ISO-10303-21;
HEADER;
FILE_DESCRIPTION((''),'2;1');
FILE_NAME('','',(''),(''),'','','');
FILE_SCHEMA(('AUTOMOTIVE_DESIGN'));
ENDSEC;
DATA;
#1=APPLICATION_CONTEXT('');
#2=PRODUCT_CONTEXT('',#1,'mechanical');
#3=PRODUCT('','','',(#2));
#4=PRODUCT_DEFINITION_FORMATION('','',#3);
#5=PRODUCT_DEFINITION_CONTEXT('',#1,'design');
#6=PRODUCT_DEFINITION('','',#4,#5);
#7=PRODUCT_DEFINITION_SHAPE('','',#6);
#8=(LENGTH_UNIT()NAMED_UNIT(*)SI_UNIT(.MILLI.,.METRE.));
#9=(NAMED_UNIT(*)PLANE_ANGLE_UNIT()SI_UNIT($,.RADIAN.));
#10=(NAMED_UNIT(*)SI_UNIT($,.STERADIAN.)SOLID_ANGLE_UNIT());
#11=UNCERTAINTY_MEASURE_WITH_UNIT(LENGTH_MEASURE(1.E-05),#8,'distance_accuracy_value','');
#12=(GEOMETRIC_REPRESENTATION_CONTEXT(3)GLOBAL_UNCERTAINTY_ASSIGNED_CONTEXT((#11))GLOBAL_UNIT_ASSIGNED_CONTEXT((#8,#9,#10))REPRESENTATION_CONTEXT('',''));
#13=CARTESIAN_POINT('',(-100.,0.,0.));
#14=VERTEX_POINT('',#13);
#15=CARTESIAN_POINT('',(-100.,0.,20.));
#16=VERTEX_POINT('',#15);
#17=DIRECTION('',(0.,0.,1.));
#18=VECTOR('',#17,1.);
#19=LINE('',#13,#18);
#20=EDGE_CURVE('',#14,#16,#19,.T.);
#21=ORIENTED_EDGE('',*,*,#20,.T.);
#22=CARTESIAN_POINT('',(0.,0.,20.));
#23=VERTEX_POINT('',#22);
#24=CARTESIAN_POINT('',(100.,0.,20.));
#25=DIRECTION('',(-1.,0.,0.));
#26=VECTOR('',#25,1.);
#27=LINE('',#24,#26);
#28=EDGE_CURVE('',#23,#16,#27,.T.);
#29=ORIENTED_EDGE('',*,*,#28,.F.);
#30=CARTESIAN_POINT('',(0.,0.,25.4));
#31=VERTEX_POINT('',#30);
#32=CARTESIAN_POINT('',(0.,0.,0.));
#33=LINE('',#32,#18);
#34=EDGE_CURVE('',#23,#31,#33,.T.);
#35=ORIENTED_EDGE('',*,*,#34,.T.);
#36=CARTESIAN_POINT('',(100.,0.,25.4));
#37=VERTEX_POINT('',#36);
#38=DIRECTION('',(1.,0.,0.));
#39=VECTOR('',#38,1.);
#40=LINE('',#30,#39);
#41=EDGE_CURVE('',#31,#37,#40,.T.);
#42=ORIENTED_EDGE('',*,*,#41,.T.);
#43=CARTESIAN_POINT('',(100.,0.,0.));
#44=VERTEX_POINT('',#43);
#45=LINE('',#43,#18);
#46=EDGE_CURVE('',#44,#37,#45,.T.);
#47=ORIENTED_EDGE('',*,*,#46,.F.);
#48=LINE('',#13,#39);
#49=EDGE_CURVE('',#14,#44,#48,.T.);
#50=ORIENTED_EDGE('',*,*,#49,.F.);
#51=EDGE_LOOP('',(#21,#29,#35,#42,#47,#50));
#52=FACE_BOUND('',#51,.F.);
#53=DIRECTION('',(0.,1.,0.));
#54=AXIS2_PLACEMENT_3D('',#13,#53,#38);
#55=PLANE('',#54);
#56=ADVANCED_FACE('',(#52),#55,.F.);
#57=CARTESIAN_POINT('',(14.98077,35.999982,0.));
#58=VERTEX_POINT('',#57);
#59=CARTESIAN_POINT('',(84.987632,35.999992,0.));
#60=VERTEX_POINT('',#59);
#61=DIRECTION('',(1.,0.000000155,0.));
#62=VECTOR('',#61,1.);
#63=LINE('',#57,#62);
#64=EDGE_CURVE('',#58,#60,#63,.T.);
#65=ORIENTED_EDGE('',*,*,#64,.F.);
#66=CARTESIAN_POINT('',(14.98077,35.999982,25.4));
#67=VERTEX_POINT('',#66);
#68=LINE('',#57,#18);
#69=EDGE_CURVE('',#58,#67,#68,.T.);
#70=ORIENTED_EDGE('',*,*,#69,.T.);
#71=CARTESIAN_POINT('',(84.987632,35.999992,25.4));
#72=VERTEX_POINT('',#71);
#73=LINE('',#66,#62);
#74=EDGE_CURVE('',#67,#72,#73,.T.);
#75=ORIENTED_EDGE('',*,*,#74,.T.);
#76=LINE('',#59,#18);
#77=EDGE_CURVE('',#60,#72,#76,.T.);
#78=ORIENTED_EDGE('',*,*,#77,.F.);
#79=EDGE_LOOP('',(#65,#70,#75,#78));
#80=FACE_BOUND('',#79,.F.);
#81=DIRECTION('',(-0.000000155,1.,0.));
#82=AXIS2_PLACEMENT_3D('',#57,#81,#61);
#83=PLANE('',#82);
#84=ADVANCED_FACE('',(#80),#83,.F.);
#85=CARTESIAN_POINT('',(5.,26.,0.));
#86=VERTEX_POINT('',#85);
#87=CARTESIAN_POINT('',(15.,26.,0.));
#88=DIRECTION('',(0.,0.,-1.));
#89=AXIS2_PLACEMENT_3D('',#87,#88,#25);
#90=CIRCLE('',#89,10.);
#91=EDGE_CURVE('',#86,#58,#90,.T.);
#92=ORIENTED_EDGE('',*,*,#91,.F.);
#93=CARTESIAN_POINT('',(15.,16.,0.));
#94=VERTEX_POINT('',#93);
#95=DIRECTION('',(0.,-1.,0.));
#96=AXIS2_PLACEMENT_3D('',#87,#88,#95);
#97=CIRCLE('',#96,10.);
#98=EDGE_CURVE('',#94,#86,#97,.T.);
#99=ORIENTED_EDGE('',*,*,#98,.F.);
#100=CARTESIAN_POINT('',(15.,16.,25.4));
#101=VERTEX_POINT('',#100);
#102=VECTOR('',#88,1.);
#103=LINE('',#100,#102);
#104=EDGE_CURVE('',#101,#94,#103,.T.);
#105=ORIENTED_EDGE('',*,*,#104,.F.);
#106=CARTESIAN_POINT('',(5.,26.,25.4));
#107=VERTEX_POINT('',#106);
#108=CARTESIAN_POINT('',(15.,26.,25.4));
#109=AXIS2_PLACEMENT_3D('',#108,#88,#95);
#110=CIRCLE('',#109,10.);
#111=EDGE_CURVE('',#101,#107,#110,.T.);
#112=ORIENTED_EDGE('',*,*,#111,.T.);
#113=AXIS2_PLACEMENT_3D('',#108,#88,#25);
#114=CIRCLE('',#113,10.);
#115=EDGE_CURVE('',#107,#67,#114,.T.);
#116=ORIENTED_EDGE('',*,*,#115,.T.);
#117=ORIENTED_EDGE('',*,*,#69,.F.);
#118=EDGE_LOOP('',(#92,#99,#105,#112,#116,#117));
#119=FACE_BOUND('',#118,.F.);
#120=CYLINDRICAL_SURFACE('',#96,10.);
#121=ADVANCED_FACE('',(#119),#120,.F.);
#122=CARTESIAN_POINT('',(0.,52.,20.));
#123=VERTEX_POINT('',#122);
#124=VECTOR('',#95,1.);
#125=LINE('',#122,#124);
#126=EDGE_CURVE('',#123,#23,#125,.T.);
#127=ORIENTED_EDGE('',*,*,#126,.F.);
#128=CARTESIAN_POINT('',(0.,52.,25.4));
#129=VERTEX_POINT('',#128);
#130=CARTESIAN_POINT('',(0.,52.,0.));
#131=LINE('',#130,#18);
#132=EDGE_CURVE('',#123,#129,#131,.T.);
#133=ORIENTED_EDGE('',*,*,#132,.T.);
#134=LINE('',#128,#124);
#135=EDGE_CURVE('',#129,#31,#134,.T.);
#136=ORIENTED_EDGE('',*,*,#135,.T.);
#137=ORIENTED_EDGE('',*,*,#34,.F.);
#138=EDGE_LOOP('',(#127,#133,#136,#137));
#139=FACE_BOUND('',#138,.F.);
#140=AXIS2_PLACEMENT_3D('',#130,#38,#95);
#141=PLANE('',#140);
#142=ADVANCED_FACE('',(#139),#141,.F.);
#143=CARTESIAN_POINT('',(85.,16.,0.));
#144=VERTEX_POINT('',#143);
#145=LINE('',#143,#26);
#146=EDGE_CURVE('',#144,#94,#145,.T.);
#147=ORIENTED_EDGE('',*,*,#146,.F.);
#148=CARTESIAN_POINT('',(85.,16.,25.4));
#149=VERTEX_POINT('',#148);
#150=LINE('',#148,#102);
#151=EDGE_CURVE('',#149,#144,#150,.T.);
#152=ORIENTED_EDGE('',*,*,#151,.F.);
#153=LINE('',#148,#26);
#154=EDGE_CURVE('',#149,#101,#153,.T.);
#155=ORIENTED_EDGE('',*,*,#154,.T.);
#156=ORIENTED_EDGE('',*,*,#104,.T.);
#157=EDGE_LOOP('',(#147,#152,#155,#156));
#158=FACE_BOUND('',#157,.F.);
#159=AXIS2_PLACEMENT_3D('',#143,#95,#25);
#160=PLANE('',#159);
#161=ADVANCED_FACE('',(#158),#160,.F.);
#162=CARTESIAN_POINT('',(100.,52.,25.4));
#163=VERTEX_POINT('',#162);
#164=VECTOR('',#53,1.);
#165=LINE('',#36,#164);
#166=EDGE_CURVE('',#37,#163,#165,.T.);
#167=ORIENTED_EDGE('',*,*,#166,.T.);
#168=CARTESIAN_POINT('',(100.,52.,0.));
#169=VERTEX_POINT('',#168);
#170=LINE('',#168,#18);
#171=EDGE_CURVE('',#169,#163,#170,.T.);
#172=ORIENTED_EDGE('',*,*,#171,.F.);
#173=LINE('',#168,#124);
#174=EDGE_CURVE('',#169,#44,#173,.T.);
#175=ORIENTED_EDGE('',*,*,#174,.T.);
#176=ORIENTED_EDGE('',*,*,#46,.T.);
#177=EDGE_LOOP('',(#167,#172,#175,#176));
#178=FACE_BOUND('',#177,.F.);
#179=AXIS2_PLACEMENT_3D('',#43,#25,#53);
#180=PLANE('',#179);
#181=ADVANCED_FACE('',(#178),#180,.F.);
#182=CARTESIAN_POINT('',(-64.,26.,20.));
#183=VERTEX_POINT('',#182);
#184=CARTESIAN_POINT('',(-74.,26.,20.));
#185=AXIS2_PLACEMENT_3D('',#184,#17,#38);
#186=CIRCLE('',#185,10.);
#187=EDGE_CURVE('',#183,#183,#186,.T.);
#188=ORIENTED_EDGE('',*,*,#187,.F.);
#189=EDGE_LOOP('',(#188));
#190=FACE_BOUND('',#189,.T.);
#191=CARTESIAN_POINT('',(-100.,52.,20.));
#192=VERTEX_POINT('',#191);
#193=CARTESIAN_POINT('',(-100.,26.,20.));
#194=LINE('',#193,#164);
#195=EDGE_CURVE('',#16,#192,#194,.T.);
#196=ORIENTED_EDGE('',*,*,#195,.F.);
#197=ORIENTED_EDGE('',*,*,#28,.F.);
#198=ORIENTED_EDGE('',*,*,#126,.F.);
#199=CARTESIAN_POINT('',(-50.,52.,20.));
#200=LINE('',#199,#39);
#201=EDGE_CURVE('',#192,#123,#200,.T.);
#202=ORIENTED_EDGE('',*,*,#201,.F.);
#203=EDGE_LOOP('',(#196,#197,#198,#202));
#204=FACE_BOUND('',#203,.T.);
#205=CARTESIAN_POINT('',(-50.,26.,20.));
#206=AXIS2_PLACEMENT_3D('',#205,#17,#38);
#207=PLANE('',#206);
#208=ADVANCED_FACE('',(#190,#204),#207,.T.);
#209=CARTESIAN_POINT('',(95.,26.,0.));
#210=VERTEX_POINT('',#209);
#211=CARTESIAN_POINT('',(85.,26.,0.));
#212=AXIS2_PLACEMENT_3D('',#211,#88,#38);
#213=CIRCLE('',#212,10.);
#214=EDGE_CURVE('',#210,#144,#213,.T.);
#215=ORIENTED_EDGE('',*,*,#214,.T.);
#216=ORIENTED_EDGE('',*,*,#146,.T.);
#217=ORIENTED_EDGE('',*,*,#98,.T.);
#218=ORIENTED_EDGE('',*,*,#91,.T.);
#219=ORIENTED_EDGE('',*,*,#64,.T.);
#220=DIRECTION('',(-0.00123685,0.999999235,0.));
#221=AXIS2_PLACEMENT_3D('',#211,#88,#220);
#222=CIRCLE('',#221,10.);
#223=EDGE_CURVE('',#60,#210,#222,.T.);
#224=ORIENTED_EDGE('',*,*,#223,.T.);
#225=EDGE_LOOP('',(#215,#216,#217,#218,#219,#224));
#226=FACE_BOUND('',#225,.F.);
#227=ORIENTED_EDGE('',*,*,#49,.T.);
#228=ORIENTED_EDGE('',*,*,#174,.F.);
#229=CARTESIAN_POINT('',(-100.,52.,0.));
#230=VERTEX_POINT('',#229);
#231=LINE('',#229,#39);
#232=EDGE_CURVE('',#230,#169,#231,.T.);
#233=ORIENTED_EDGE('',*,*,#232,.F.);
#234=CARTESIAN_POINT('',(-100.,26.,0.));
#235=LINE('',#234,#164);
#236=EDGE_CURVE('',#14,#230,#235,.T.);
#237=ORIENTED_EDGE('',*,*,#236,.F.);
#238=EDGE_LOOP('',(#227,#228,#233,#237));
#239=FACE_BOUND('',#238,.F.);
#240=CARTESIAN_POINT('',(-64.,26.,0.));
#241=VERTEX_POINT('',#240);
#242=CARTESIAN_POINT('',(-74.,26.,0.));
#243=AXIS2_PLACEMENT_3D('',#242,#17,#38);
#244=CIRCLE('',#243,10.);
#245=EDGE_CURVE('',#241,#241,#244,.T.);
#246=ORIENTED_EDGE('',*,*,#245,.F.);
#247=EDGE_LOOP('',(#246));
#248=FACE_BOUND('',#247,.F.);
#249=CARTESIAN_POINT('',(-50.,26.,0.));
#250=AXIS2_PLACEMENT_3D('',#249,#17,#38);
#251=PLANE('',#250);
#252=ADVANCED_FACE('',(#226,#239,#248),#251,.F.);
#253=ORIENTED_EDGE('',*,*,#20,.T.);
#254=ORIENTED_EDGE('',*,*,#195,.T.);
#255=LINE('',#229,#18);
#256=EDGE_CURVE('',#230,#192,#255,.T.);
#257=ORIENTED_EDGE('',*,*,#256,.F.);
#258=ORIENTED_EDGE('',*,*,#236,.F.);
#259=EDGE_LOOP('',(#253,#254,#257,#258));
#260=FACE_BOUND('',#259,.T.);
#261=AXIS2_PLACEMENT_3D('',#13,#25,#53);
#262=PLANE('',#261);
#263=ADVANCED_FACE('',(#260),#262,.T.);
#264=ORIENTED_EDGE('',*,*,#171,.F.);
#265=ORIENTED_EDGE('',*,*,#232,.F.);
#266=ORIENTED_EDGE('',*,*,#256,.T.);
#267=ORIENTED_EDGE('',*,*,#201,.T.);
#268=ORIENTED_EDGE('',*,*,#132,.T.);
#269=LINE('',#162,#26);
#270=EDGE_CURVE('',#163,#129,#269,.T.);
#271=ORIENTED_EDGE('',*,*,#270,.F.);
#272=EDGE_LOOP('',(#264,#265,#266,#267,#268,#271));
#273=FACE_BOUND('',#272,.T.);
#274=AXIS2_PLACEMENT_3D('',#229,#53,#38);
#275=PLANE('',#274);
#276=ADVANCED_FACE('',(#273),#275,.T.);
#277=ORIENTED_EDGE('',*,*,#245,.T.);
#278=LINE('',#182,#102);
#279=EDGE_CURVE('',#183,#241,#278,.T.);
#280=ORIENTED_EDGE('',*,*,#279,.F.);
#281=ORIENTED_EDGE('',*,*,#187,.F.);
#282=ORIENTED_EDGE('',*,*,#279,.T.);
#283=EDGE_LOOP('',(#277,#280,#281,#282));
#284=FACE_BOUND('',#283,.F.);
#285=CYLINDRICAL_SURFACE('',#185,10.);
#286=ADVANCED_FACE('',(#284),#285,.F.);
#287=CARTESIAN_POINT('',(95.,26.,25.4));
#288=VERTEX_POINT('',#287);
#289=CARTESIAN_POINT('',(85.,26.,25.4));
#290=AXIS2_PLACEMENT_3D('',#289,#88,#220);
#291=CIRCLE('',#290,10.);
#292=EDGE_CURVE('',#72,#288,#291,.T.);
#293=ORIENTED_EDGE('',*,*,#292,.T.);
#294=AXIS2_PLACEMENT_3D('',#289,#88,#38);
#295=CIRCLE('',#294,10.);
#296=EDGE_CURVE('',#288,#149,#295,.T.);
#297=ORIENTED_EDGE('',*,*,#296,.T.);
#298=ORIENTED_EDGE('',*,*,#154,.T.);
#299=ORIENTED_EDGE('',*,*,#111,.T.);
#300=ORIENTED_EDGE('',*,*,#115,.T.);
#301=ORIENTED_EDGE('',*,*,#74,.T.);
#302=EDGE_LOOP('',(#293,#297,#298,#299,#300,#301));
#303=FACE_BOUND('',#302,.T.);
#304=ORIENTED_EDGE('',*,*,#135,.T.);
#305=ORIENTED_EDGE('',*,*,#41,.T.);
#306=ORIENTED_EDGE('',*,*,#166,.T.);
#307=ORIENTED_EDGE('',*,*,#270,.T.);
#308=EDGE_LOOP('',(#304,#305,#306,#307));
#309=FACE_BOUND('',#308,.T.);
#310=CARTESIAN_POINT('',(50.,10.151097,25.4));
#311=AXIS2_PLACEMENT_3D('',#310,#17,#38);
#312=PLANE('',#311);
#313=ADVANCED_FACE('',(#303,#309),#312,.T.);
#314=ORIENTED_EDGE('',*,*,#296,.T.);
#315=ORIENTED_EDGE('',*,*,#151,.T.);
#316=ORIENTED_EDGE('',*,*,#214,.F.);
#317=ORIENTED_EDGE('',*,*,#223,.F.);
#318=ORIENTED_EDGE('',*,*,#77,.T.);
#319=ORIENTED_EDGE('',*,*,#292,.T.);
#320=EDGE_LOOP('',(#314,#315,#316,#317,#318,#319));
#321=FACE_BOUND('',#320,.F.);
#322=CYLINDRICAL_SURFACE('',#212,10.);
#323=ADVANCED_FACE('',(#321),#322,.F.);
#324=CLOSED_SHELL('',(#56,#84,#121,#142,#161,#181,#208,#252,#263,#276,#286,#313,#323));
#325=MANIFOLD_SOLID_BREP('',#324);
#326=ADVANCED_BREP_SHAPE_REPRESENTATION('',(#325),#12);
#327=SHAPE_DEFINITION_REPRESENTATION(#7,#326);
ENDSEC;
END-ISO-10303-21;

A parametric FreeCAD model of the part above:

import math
import FreeCAD as App
import Part
import Sketcher

V = App.Vector
Q = App.Units.Quantity

doc = App.newDocument("Part")
body = doc.addObject("PartDesign::Body", "Body")

sketch1 = body.newObject("Sketcher::SketchObject", "Sketch")
sketch1.AttachmentSupport = (doc.getObject("XY_Plane"), [""])
sketch1.MapMode = "FlatFace"
sketch1.addGeometry(Part.LineSegment(V(0, 26, 0), V(0, 0, 0)), False)
sketch1.addGeometry(Part.LineSegment(V(0, 0, 0), V(100, 0, 0)), False)
sketch1.addGeometry(Part.LineSegment(V(100, 0, 0), V(100, 26, 0)), False)
sketch1.addGeometry(Part.LineSegment(V(100, 26, 0), V(95, 26, 0)), False)
sketch1.addGeometry(Part.ArcOfCircle(Part.Circle(V(85, 26, 0), V(0, 0, 1), 10), math.radians(-90), math.radians(0)), False)
sketch1.addGeometry(Part.LineSegment(V(85, 16, 0), V(15, 16, 0)), False)
sketch1.addGeometry(Part.ArcOfCircle(Part.Circle(V(15, 26, 0), V(0, 0, 1), 10), math.radians(180), math.radians(270)), False)
sketch1.addGeometry(Part.LineSegment(V(5, 26, 0), V(0, 26, 0)), False)
sketch1.addConstraint(Sketcher.Constraint("Coincident", 0, 2, 1, 1))
sketch1.addConstraint(Sketcher.Constraint("Coincident", 1, 2, 2, 1))
sketch1.addConstraint(Sketcher.Constraint("Coincident", 2, 2, 3, 1))
sketch1.addConstraint(Sketcher.Constraint("Coincident", 3, 2, 4, 2))
sketch1.addConstraint(Sketcher.Constraint("Tangent", 4, 1, 5, 1))
sketch1.addConstraint(Sketcher.Constraint("Tangent", 5, 2, 6, 2))
sketch1.addConstraint(Sketcher.Constraint("Coincident", 6, 1, 7, 1))
sketch1.addConstraint(Sketcher.Constraint("Coincident", 7, 2, 0, 1))
sketch1.addConstraint(Sketcher.Constraint("Vertical", 0))
sketch1.addConstraint(Sketcher.Constraint("Horizontal", 1))
sketch1.addConstraint(Sketcher.Constraint("Vertical", 2))
sketch1.addConstraint(Sketcher.Constraint("Horizontal", 3))
sketch1.addConstraint(Sketcher.Constraint("Horizontal", 5))
sketch1.addConstraint(Sketcher.Constraint("Horizontal", 7))
sketch1.addConstraint(Sketcher.Constraint("Coincident", 0, 2, -1, 1))
sketch1.addConstraint(Sketcher.Constraint("Equal", 4, 6))
sketch1.addConstraint(Sketcher.Constraint("Horizontal", 6, 3, 2, 2))
sketch1.addConstraint(Sketcher.Constraint("Horizontal", 3, 2, 6, 1))
sketch1.addConstraint(Sketcher.Constraint("Equal", 3, 7))
sketch1.addConstraint(Sketcher.Constraint("Radius", 4, Q("10 mm")))
sketch1.addConstraint(Sketcher.Constraint("DistanceX", 1, 1, 1, 2, Q("100 mm")))
sketch1.addConstraint(Sketcher.Constraint("DistanceX", 3, 2, 3, 1, Q("5 mm")))
sketch1.addConstraint(Sketcher.Constraint("DistanceY", 0, 2, 0, 1, Q("26 mm")))
pad1 = body.newObject("PartDesign::Pad", "Pad")
pad1.Profile = sketch1
pad1.Length = 20

sketch2 = body.newObject("Sketcher::SketchObject", "Sketch001")
sketch2.AttachmentSupport = (doc.getObject("XY_Plane"), [""])
sketch2.MapMode = "FlatFace"
sketch2.AttachmentOffset = App.Placement(V(0, 0, 20), App.Rotation())
sketch2.addGeometry(Part.LineSegment(V(85.683391, 35.976622, 0), V(15.684075, 35.976575, 0)), False)
sketch2.addGeometry(Part.LineSegment(V(15.684075, 35.976575, 0), V(15.684075, 16.023425, 0)), False)
sketch2.addGeometry(Part.LineSegment(V(15.684075, 16.023425, 0), V(85.683391, 16.023378, 0)), False)
sketch2.addGeometry(Part.LineSegment(V(85.683391, 16.023378, 0), V(85.683391, 35.976622, 0)), False)
sketch2.addConstraint(Sketcher.Constraint("Coincident", 0, 2, 1, 1))
sketch2.addConstraint(Sketcher.Constraint("Coincident", 1, 2, 2, 1))
sketch2.addConstraint(Sketcher.Constraint("Coincident", 2, 2, 3, 1))
sketch2.addConstraint(Sketcher.Constraint("Coincident", 3, 2, 0, 1))
sketch2.addConstraint(Sketcher.Constraint("Vertical", 1))
sketch2.addConstraint(Sketcher.Constraint("Vertical", 3))
sketch2.addConstraint(Sketcher.Constraint("DistanceY", 1, 2, 1, 1, Q("19.953149 mm")))
sketch2.addConstraint(Sketcher.Constraint("DistanceY", 3, 1, 3, 2, Q("19.953243 mm")))
sketch2.addConstraint(Sketcher.Constraint("DistanceX", -1, 1, 2, 2, Q("85.683391 mm")))
sketch2.addConstraint(Sketcher.Constraint("DistanceY", -1, 1, 2, 2, Q("16.023378 mm")))
sketch2.addConstraint(Sketcher.Constraint("Distance", 0, Q("69.999315 mm")))
sketch2.addConstraint(Sketcher.Constraint("DistanceY", -1, 1, 0, 2, Q("35.976575 mm")))
pocket1 = body.newObject("PartDesign::Pocket", "Pocket")
pocket1.Profile = sketch2
pocket1.Length = 25.4

sketch3 = body.newObject("Sketcher::SketchObject", "Sketch002")
sketch3.AttachmentSupport = (doc.getObject("XY_Plane"), [""])
sketch3.MapMode = "FlatFace"
sketch3.AttachmentOffset = App.Placement(V(0, 0, 20), App.Rotation())
sketch3.addGeometry(Part.LineSegment(V(85.683391, 35.976622, 0), V(15.684075, 35.976575, 0)), False)
sketch3.addGeometry(Part.LineSegment(V(15.684075, 35.976575, 0), V(15.684075, 16.023425, 0)), False)
sketch3.addGeometry(Part.LineSegment(V(15.684075, 16.023425, 0), V(85.683391, 16.023378, 0)), False)
sketch3.addGeometry(Part.LineSegment(V(85.683391, 16.023378, 0), V(85.683391, 35.976622, 0)), False)
sketch3.addConstraint(Sketcher.Constraint("Coincident", 0, 2, 1, 1))
sketch3.addConstraint(Sketcher.Constraint("Coincident", 1, 2, 2, 1))
sketch3.addConstraint(Sketcher.Constraint("Coincident", 2, 2, 3, 1))
sketch3.addConstraint(Sketcher.Constraint("Coincident", 3, 2, 0, 1))
sketch3.addConstraint(Sketcher.Constraint("Vertical", 1))
sketch3.addConstraint(Sketcher.Constraint("Vertical", 3))
sketch3.addConstraint(Sketcher.Constraint("DistanceY", 1, 2, 1, 1, Q("19.953149 mm")))
sketch3.addConstraint(Sketcher.Constraint("DistanceY", 3, 1, 3, 2, Q("19.953243 mm")))
sketch3.addConstraint(Sketcher.Constraint("DistanceX", -1, 1, 2, 2, Q("85.683391 mm")))
sketch3.addConstraint(Sketcher.Constraint("DistanceY", -1, 1, 2, 2, Q("16.023378 mm")))
sketch3.addConstraint(Sketcher.Constraint("Distance", 0, Q("69.999315 mm")))
sketch3.addConstraint(Sketcher.Constraint("DistanceY", -1, 1, 0, 2, Q("35.976575 mm")))
pocket2 = body.newObject("PartDesign::Pocket", "Pocket001")
pocket2.Profile = sketch3
pocket2.Length = 25.4

sketch4 = body.newObject("Sketcher::SketchObject", "Sketch003")
sketch4.AttachmentSupport = (doc.getObject("XY_Plane"), [""])
sketch4.MapMode = "FlatFace"
sketch4.addGeometry(Part.LineSegment(V(-100, 52, 0), V(-100, 0, 0)), False)
sketch4.addGeometry(Part.LineSegment(V(-100, 0, 0), V(0, 0, 0)), False)
sketch4.addGeometry(Part.LineSegment(V(0, 0, 0), V(0, 52, 0)), False)
sketch4.addGeometry(Part.LineSegment(V(0, 52, 0), V(-100, 52, 0)), False)
sketch4.addConstraint(Sketcher.Constraint("Coincident", 0, 2, 1, 1))
sketch4.addConstraint(Sketcher.Constraint("Coincident", 1, 2, 2, 1))
sketch4.addConstraint(Sketcher.Constraint("Coincident", 2, 2, 3, 1))
sketch4.addConstraint(Sketcher.Constraint("Coincident", 3, 2, 0, 1))
sketch4.addConstraint(Sketcher.Constraint("Vertical", 0))
sketch4.addConstraint(Sketcher.Constraint("Horizontal", 1))
sketch4.addConstraint(Sketcher.Constraint("Vertical", 2))
sketch4.addConstraint(Sketcher.Constraint("Horizontal", 3))
sketch4.addConstraint(Sketcher.Constraint("Coincident", 1, 2, -1, 1))
sketch4.addConstraint(Sketcher.Constraint("DistanceX", 1, 1, 1, 2, Q("100 mm")))
sketch4.addConstraint(Sketcher.Constraint("DistanceY", 0, 2, 0, 1, Q("52 mm")))
pad2 = body.newObject("PartDesign::Pad", "Pad001")
pad2.Profile = sketch4
pad2.Length = 20

sketch5 = body.newObject("Sketcher::SketchObject", "Sketch004")
sketch5.AttachmentSupport = (doc.getObject("XY_Plane"), [""])
sketch5.MapMode = "FlatFace"
sketch5.AttachmentOffset = App.Placement(V(0, 0, 20), App.Rotation())
sketch5.addGeometry(Part.Circle(V(-74, 26, 0), V(0, 0, 1), 10), False)
sketch5.addConstraint(Sketcher.Constraint("Diameter", 0, Q("20 mm")))
sketch5.addConstraint(Sketcher.Constraint("DistanceX", 0, 3, -1, 1, Q("74 mm")))
sketch5.addConstraint(Sketcher.Constraint("DistanceY", -1, 1, 0, 3, Q("26 mm")))
pocket3 = body.newObject("PartDesign::Pocket", "Pocket002")
pocket3.Profile = sketch5
pocket3.Length = 25.4

sketch6 = body.newObject("Sketcher::SketchObject", "Sketch005")
sketch6.AttachmentSupport = (doc.getObject("XY_Plane"), [""])
sketch6.MapMode = "FlatFace"
sketch6.addGeometry(Part.LineSegment(V(0, 0, 0), V(100, 0, 0)), False)
sketch6.addGeometry(Part.LineSegment(V(100, 0, 0), V(100, 52, 0)), False)
sketch6.addGeometry(Part.LineSegment(V(100, 52, 0), V(0, 52, 0)), False)
sketch6.addGeometry(Part.LineSegment(V(0, 52, 0), V(0, 0, 0)), False)
sketch6.addGeometry(Part.ArcOfCircle(Part.Circle(V(85, 26, 0), V(0, 0, 1), 10), math.radians(-90), math.radians(0)), False)
sketch6.addGeometry(Part.LineSegment(V(85, 16, 0), V(15, 16, 0)), False)
sketch6.addGeometry(Part.ArcOfCircle(Part.Circle(V(15, 26, 0), V(0, 0, 1), 10), math.radians(180), math.radians(270)), False)
sketch6.addGeometry(Part.ArcOfCircle(Part.Circle(V(15, 26, 0), V(0, 0, 1), 10), math.radians(90), math.radians(180)), False)
sketch6.addGeometry(Part.LineSegment(V(15, 36, 0), V(85, 36, 0)), False)
sketch6.addGeometry(Part.ArcOfCircle(Part.Circle(V(85, 26, 0), V(0, 0, 1), 10), math.radians(0), math.radians(90)), False)
sketch6.addConstraint(Sketcher.Constraint("Coincident", 0, 2, 1, 1))
sketch6.addConstraint(Sketcher.Constraint("Coincident", 1, 2, 2, 1))
sketch6.addConstraint(Sketcher.Constraint("Coincident", 2, 2, 3, 1))
sketch6.addConstraint(Sketcher.Constraint("Coincident", 3, 2, 0, 1))
sketch6.addConstraint(Sketcher.Constraint("Tangent", 4, 1, 5, 1))
sketch6.addConstraint(Sketcher.Constraint("Tangent", 5, 2, 6, 2))
sketch6.addConstraint(Sketcher.Constraint("Tangent", 6, 1, 7, 2))
sketch6.addConstraint(Sketcher.Constraint("Coincident", 7, 1, 8, 1))
sketch6.addConstraint(Sketcher.Constraint("Coincident", 8, 2, 9, 2))
sketch6.addConstraint(Sketcher.Constraint("Tangent", 9, 1, 4, 2))
sketch6.addConstraint(Sketcher.Constraint("Horizontal", 0))
sketch6.addConstraint(Sketcher.Constraint("Vertical", 1))
sketch6.addConstraint(Sketcher.Constraint("Horizontal", 2))
sketch6.addConstraint(Sketcher.Constraint("Vertical", 3))
sketch6.addConstraint(Sketcher.Constraint("Horizontal", 5))
sketch6.addConstraint(Sketcher.Constraint("Coincident", 3, 2, -1, 1))
sketch6.addConstraint(Sketcher.Constraint("Equal", 4, 6))
sketch6.addConstraint(Sketcher.Constraint("Equal", 6, 7))
sketch6.addConstraint(Sketcher.Constraint("Equal", 7, 9))
sketch6.addConstraint(Sketcher.Constraint("Horizontal", 9, 3, 6, 1))
sketch6.addConstraint(Sketcher.Constraint("Horizontal", 6, 1, 9, 1))
sketch6.addConstraint(Sketcher.Constraint("Radius", 4, Q("10 mm")))
sketch6.addConstraint(Sketcher.Constraint("DistanceX", 0, 1, 0, 2, Q("100 mm")))
sketch6.addConstraint(Sketcher.Constraint("DistanceX", 5, 2, 5, 1, Q("70 mm")))
sketch6.addConstraint(Sketcher.Constraint("DistanceY", 1, 1, 1, 2, Q("52 mm")))
sketch6.addConstraint(Sketcher.Constraint("DistanceX", -1, 1, 4, 3, Q("85 mm")))
sketch6.addConstraint(Sketcher.Constraint("DistanceY", -1, 1, 4, 3, Q("26 mm")))
sketch6.addConstraint(Sketcher.Constraint("Distance", 8, Q("70.006861 mm")))
sketch6.addConstraint(Sketcher.Constraint("DistanceX", -1, 1, 7, 1, Q("14.98077 mm")))
pad3 = body.newObject("PartDesign::Pad", "Pad002")
pad3.Profile = sketch6
pad3.Length = 25.4

doc.recompute()
